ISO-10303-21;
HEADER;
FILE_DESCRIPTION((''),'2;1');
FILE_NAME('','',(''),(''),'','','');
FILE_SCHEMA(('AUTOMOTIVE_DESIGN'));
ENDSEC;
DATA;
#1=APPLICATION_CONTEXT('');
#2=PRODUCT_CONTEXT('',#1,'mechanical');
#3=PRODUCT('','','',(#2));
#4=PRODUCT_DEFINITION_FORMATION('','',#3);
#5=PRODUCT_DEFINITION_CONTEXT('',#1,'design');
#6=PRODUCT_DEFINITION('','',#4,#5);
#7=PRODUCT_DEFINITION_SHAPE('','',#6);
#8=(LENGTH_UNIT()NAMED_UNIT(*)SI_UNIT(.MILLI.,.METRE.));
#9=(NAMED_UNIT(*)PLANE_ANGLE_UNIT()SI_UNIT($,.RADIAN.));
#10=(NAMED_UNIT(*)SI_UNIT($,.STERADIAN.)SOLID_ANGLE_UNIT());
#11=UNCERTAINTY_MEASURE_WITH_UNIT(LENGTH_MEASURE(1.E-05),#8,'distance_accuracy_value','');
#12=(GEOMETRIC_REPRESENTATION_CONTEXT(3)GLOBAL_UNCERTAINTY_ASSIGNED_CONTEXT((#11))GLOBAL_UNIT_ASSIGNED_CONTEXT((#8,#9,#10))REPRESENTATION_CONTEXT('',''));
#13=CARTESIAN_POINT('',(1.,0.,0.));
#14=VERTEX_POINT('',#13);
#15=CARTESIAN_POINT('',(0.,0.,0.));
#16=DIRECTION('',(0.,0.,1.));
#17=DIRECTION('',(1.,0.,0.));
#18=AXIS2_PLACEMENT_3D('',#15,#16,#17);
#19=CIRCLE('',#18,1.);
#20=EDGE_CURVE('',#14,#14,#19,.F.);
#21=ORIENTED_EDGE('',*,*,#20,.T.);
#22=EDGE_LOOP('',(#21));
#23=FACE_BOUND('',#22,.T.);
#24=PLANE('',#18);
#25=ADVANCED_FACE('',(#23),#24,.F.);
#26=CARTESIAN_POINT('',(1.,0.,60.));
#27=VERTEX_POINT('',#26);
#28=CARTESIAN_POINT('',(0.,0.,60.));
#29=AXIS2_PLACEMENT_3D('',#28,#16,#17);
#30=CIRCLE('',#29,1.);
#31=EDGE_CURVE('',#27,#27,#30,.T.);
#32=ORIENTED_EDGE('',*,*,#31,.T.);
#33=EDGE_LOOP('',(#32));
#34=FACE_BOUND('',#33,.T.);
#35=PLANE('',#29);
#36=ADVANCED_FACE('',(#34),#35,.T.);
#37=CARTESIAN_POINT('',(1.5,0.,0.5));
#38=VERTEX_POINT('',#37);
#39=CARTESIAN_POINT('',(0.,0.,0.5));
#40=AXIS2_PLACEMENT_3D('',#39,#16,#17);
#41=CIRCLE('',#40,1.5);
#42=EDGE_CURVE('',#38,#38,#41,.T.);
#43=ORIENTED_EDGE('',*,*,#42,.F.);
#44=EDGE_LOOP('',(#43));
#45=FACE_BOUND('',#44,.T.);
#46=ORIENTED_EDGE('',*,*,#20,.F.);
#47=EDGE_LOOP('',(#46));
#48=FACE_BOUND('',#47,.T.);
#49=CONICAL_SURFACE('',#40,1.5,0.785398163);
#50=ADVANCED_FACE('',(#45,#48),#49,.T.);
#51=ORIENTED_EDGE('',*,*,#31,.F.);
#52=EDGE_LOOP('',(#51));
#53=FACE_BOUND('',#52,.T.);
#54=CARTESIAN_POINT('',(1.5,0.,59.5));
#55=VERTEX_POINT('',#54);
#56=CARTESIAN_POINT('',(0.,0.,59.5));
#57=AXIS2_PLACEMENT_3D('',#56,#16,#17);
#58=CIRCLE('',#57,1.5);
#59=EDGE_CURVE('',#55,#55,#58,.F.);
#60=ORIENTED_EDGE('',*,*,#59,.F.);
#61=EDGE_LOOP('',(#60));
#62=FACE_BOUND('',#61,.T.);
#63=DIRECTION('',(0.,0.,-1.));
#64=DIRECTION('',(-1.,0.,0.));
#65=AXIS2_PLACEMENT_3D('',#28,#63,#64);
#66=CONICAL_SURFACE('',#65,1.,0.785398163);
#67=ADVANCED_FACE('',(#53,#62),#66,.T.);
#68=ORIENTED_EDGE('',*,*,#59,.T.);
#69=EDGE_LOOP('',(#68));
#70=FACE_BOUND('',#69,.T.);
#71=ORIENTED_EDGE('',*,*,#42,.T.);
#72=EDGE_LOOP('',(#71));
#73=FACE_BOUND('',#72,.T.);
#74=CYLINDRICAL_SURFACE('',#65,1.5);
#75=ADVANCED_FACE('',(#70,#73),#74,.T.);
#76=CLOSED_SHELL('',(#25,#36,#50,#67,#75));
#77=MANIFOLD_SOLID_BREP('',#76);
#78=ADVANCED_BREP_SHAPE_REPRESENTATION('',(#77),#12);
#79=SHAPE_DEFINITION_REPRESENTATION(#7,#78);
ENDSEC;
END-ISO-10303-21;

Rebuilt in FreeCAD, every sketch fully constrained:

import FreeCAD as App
import Part
import Sketcher
from FreeCAD import Vector


def edges_at(feature, points):
    """Names of the edges that pass closest to the given points."""
    edges = feature.Shape.Edges
    near = lambda p: min(range(len(edges)), key=lambda i: edges[i].distToShape(Part.Vertex(*p))[0])
    return sorted({f"Edge{near(p) + 1}" for p in points})

doc = App.newDocument("Part")
body = doc.addObject("PartDesign::Body", "Body")

# Sketch on XY plane
sketch1 = body.newObject("Sketcher::SketchObject", "Sketch")
sketch1.AttachmentSupport = (doc.getObject("XY_Plane"), [""])
sketch1.MapMode = "FlatFace"
sketch1.addGeometry(Part.Circle(Vector(0, 0, 0), Vector(0, 0, 1), 1.5), False)
sketch1.addConstraint([
    Sketcher.Constraint("Coincident", 0, 3, -1, 1),
    Sketcher.Constraint("Diameter", 0, 3.0),
])
pad1 = body.newObject("PartDesign::Pad", "Pad")
pad1.Profile = sketch1
pad1.Length = 60
doc.recompute()

chamfer = body.newObject("PartDesign::Chamfer", "Chamfer")
chamfer.Base = (pad1, edges_at(pad1, [(-1.5, 0, 0), (-1.5, 0, 60)]))
chamfer.Size = 0.5

doc.recompute()
